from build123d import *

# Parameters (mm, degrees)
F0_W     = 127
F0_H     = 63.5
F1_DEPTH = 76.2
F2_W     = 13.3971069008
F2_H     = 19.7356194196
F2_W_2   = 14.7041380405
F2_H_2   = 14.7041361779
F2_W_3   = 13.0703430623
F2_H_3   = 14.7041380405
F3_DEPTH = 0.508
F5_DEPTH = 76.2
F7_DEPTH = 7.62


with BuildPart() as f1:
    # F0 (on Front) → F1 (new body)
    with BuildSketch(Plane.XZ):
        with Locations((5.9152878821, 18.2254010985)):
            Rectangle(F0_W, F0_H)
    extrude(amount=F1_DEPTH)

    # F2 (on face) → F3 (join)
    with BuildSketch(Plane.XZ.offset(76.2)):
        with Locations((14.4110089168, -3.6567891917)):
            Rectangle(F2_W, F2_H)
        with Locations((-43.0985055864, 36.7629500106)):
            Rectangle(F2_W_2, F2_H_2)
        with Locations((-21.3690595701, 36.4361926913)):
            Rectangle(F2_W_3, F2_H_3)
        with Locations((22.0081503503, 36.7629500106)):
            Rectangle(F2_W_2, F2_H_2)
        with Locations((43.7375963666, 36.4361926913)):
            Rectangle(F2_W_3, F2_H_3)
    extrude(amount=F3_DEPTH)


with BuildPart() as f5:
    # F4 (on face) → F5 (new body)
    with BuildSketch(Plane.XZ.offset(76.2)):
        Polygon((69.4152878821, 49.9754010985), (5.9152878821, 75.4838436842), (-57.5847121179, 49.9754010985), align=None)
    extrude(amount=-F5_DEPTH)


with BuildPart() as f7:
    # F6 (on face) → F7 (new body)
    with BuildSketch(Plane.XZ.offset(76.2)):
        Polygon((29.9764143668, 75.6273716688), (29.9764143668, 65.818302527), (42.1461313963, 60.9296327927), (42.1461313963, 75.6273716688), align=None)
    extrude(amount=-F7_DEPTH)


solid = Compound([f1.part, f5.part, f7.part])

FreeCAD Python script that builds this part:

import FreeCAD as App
import Part
import Sketcher

V = App.Vector
Q = App.Units.Quantity

doc = App.newDocument("Part")
body = doc.addObject("PartDesign::Body", "Body")

sketch1 = body.newObject("Sketcher::SketchObject", "Sketch")
sketch1.AttachmentSupport = (doc.getObject("XZ_Plane"), [""])
sketch1.MapMode = "FlatFace"
sketch1.addGeometry(Part.LineSegment(V(-57.584712, 49.975401, 0), V(-57.584712, -13.524599, 0)), False)
sketch1.addGeometry(Part.LineSegment(V(-57.584712, -13.524599, 0), V(69.415288, -13.524599, 0)), False)
sketch1.addGeometry(Part.LineSegment(V(69.415288, -13.524599, 0), V(69.415288, 49.975401, 0)), False)
sketch1.addGeometry(Part.LineSegment(V(69.415288, 49.975401, 0), V(-57.584712, 49.975401, 0)), False)
sketch1.addConstraint(Sketcher.Constraint("Coincident", 0, 2, 1, 1))
sketch1.addConstraint(Sketcher.Constraint("Coincident", 1, 2, 2, 1))
sketch1.addConstraint(Sketcher.Constraint("Coincident", 2, 2, 3, 1))
sketch1.addConstraint(Sketcher.Constraint("Coincident", 3, 2, 0, 1))
sketch1.addConstraint(Sketcher.Constraint("Vertical", 0))
sketch1.addConstraint(Sketcher.Constraint("Horizontal", 1))
sketch1.addConstraint(Sketcher.Constraint("Vertical", 2))
sketch1.addConstraint(Sketcher.Constraint("Horizontal", 3))
sketch1.addConstraint(Sketcher.Constraint("DistanceX", 1, 1, 1, 2, Q("5 in")))
sketch1.addConstraint(Sketcher.Constraint("DistanceY", 0, 2, 0, 1, Q("2.5 in")))
sketch1.addConstraint(Sketcher.Constraint("DistanceY", 0, 2, -1, 1, Q("13.524599 mm")))
sketch1.addConstraint(Sketcher.Constraint("DistanceX", 0, 2, -1, 1, Q("57.584712 mm")))
pad1 = body.newObject("PartDesign::Pad", "Pad")
pad1.Profile = sketch1
pad1.Length = Q("3 in")

sketch2 = body.newObject("Sketcher::SketchObject", "Sketch001")
sketch2.AttachmentSupport = (doc.getObject("XZ_Plane"), [""])
sketch2.MapMode = "FlatFace"
sketch2.AttachmentOffset = App.Placement(V(0, 0, 3 * 25.4), App.Rotation())
sketch2.addGeometry(Part.LineSegment(V(7.712455, 6.211021, 0), V(7.712455, -13.524599, 0)), False)
sketch2.addGeometry(Part.LineSegment(V(7.712455, -13.524599, 0), V(21.109562, -13.524599, 0)), False)
sketch2.addGeometry(Part.LineSegment(V(21.109562, -13.524599, 0), V(21.109562, 6.211021, 0)), False)
sketch2.addGeometry(Part.LineSegment(V(21.109562, 6.211021, 0), V(7.712455, 6.211021, 0)), False)
sketch2.addGeometry(Part.LineSegment(V(-50.450575, 44.115018, 0), V(-50.450575, 29.410882, 0)), False)
sketch2.addGeometry(Part.LineSegment(V(-50.450575, 29.410882, 0), V(-35.746437, 29.410882, 0)), False)
sketch2.addGeometry(Part.LineSegment(V(-35.746437, 29.410882, 0), V(-35.746437, 44.115018, 0)), False)
sketch2.addGeometry(Part.LineSegment(V(-35.746437, 44.115018, 0), V(-50.450575, 44.115018, 0)), False)
sketch2.addGeometry(Part.LineSegment(V(-27.904231, 43.788262, 0), V(-27.904231, 29.084124, 0)), False)
sketch2.addGeometry(Part.LineSegment(V(-27.904231, 29.084124, 0), V(-14.833888, 29.084124, 0)), False)
sketch2.addGeometry(Part.LineSegment(V(-14.833888, 29.084124, 0), V(-14.833888, 43.788262, 0)), False)
sketch2.addGeometry(Part.LineSegment(V(-14.833888, 43.788262, 0), V(-27.904231, 43.788262, 0)), False)
sketch2.addGeometry(Part.LineSegment(V(14.656081, 44.115018, 0), V(14.656081, 29.410882, 0)), False)
sketch2.addGeometry(Part.LineSegment(V(14.656081, 29.410882, 0), V(29.360219, 29.410882, 0)), False)
sketch2.addGeometry(Part.LineSegment(V(29.360219, 29.410882, 0), V(29.360219, 44.115018, 0)), False)
sketch2.addGeometry(Part.LineSegment(V(29.360219, 44.115018, 0), V(14.656081, 44.115018, 0)), False)
sketch2.addGeometry(Part.LineSegment(V(37.202425, 43.788262, 0), V(37.202425, 29.084124, 0)), False)
sketch2.addGeometry(Part.LineSegment(V(37.202425, 29.084124, 0), V(50.272768, 29.084124, 0)), False)
sketch2.addGeometry(Part.LineSegment(V(50.272768, 29.084124, 0), V(50.272768, 43.788262, 0)), False)
sketch2.addGeometry(Part.LineSegment(V(50.272768, 43.788262, 0), V(37.202425, 43.788262, 0)), False)
sketch2.addConstraint(Sketcher.Constraint("Coincident", 0, 2, 1, 1))
sketch2.addConstraint(Sketcher.Constraint("Coincident", 1, 2, 2, 1))
sketch2.addConstraint(Sketcher.Constraint("Coincident", 2, 2, 3, 1))
sketch2.addConstraint(Sketcher.Constraint("Coincident", 3, 2, 0, 1))
sketch2.addConstraint(Sketcher.Constraint("Coincident", 4, 2, 5, 1))
sketch2.addConstraint(Sketcher.Constraint("Coincident", 5, 2, 6, 1))
sketch2.addConstraint(Sketcher.Constraint("Coincident", 6, 2, 7, 1))
sketch2.addConstraint(Sketcher.Constraint("Coincident", 7, 2, 4, 1))
sketch2.addConstraint(Sketcher.Constraint("Coincident", 8, 2, 9, 1))
sketch2.addConstraint(Sketcher.Constraint("Coincident", 9, 2, 10, 1))
sketch2.addConstraint(Sketcher.Constraint("Coincident", 10, 2, 11, 1))
sketch2.addConstraint(Sketcher.Constraint("Coincident", 11, 2, 8, 1))
sketch2.addConstraint(Sketcher.Constraint("Coincident", 12, 2, 13, 1))
sketch2.addConstraint(Sketcher.Constraint("Coincident", 13, 2, 14, 1))
sketch2.addConstraint(Sketcher.Constraint("Coincident", 14, 2, 15, 1))
sketch2.addConstraint(Sketcher.Constraint("Coincident", 15, 2, 12, 1))
sketch2.addConstraint(Sketcher.Constraint("Coincident", 16, 2, 17, 1))
sketch2.addConstraint(Sketcher.Constraint("Coincident", 17, 2, 18, 1))
sketch2.addConstraint(Sketcher.Constraint("Coincident", 18, 2, 19, 1))
sketch2.addConstraint(Sketcher.Constraint("Coincident", 19, 2, 16, 1))
sketch2.addConstraint(Sketcher.Constraint("Vertical", 0))
sketch2.addConstraint(Sketcher.Constraint("Horizontal", 1))
sketch2.addConstraint(Sketcher.Constraint("Vertical", 2))
sketch2.addConstraint(Sketcher.Constraint("Horizontal", 3))
sketch2.addConstraint(Sketcher.Constraint("Vertical", 4))
sketch2.addConstraint(Sketcher.Constraint("Horizontal", 5))
sketch2.addConstraint(Sketcher.Constraint("Vertical", 6))
sketch2.addConstraint(Sketcher.Constraint("Horizontal", 7))
sketch2.addConstraint(Sketcher.Constraint("Vertical", 8))
sketch2.addConstraint(Sketcher.Constraint("Horizontal", 9))
sketch2.addConstraint(Sketcher.Constraint("Vertical", 10))
sketch2.addConstraint(Sketcher.Constraint("Horizontal", 11))
sketch2.addConstraint(Sketcher.Constraint("Vertical", 12))
sketch2.addConstraint(Sketcher.Constraint("Horizontal", 13))
sketch2.addConstraint(Sketcher.Constraint("Vertical", 14))
sketch2.addConstraint(Sketcher.Constraint("Horizontal", 15))
sketch2.addConstraint(Sketcher.Constraint("Vertical", 16))
sketch2.addConstraint(Sketcher.Constraint("Horizontal", 17))
sketch2.addConstraint(Sketcher.Constraint("Vertical", 18))
sketch2.addConstraint(Sketcher.Constraint("Horizontal", 19))
sketch2.addConstraint(Sketcher.Constraint("Horizontal", 5, 2, 12, 2))
sketch2.addConstraint(Sketcher.Constraint("Horizontal", 7, 2, 14, 2))
sketch2.addConstraint(Sketcher.Constraint("Horizontal", 9, 2, 16, 2))
sketch2.addConstraint(Sketcher.Constraint("Horizontal", 11, 2, 18, 2))
sketch2.addConstraint(Sketcher.Constraint("Equal", 7, 13))
sketch2.addConstraint(Sketcher.Constraint("Equal", 11, 17))
sketch2.addConstraint(Sketcher.Constraint("Equal", 15, 4))
sketch2.addConstraint(Sketcher.Constraint("Equal", 6, 8))
sketch2.addConstraint(Sketcher.Constraint("DistanceX", 5, 1, 5, 2, Q("14.704138 mm")))
sketch2.addConstraint(Sketcher.Constraint("DistanceY", 0, 2, 0, 1, Q("19.735619 mm")))
sketch2.addConstraint(Sketcher.Constraint("DistanceY", 0, 2, -1, 1, Q("13.524599 mm")))
sketch2.addConstraint(Sketcher.Constraint("DistanceX", 5, 2, 2, 2, Q("56.855999 mm")))
sketch2.addConstraint(Sketcher.Constraint("DistanceX", 1, 1, 1, 2, Q("13.397107 mm")))
sketch2.addConstraint(Sketcher.Constraint("DistanceX", 9, 1, 9, 2, Q("13.070343 mm")))
sketch2.addConstraint(Sketcher.Constraint("DistanceY", -1, 1, 4, 2, Q("29.410882 mm")))
sketch2.addConstraint(Sketcher.Constraint("DistanceX", 8, 2, -1, 1, Q("27.904231 mm")))
sketch2.addConstraint(Sketcher.Constraint("DistanceY", -1, 1, 10, 2, Q("43.788262 mm")))
sketch2.addConstraint(Sketcher.Constraint("DistanceX", -1, 1, 12, 2, Q("14.656081 mm")))
sketch2.addConstraint(Sketcher.Constraint("DistanceX", 5, 2, 9, 2, Q("20.912549 mm")))
sketch2.addConstraint(Sketcher.Constraint("DistanceX", 13, 2, 17, 2, Q("20.912549 mm")))
pad2 = body.newObject("PartDesign::Pad", "Pad001")
pad2.Profile = sketch2
pad2.Length = Q("0.02 in")
body2 = doc.addObject("PartDesign::Body", "Body001")

sketch3 = body2.newObject("Sketcher::SketchObject", "Sketch002")
sketch3.AttachmentSupport = (doc.getObject("XZ_Plane001"), [""])
sketch3.MapMode = "FlatFace"
sketch3.AttachmentOffset = App.Placement(V(0, 0, 3 * 25.4), App.Rotation())
sketch3.addGeometry(Part.LineSegment(V(69.415288, 49.975401, 0), V(5.915288, 75.483844, 0)), False)
sketch3.addGeometry(Part.LineSegment(V(5.915288, 75.483844, 0), V(-57.584712, 49.975401, 0)), False)
sketch3.addGeometry(Part.LineSegment(V(-57.584712, 49.975401, 0), V(69.415288, 49.975401, 0)), False)
sketch3.addConstraint(Sketcher.Constraint("Coincident", 0, 2, 1, 1))
sketch3.addConstraint(Sketcher.Constraint("Coincident", 1, 2, 2, 1))
sketch3.addConstraint(Sketcher.Constraint("Coincident", 2, 2, 0, 1))
sketch3.addConstraint(Sketcher.Constraint("Horizontal", 2))
sketch3.addConstraint(Sketcher.Constraint("Equal", 0, 1))
sketch3.addConstraint(Sketcher.Constraint("DistanceX", 2, 1, 2, 2, Q("5 in")))
sketch3.addConstraint(Sketcher.Constraint("DistanceY", -1, 1, 1, 2, Q("49.975401 mm")))
sketch3.addConstraint(Sketcher.Constraint("Distance", 0, Q("68.431942 mm")))
sketch3.addConstraint(Sketcher.Constraint("DistanceX", -1, 1, 0, 2, Q("5.915288 mm")))
pad3 = body2.newObject("PartDesign::Pad", "Pad002")
pad3.Profile = sketch3
pad3.Length = Q("3 in")
pad3.Reversed = True
body3 = doc.addObject("PartDesign::Body", "Body002")

sketch4 = body3.newObject("Sketcher::SketchObject", "Sketch003")
sketch4.AttachmentSupport = (doc.getObject("XZ_Plane002"), [""])
sketch4.MapMode = "FlatFace"
sketch4.AttachmentOffset = App.Placement(V(0, 0, 3 * 25.4), App.Rotation())
sketch4.addGeometry(Part.LineSegment(V(29.976414, 75.627372, 0), V(29.976414, 65.818303, 0)), False)
sketch4.addGeometry(Part.LineSegment(V(29.976414, 65.818303, 0), V(42.146131, 60.929633, 0)), False)
sketch4.addGeometry(Part.LineSegment(V(42.146131, 60.929633, 0), V(42.146131, 75.627372, 0)), False)
sketch4.addGeometry(Part.LineSegment(V(42.146131, 75.627372, 0), V(29.976414, 75.627372, 0)), False)
sketch4.addConstraint(Sketcher.Constraint("Coincident", 0, 2, 1, 1))
sketch4.addConstraint(Sketcher.Constraint("Coincident", 1, 2, 2, 1))
sketch4.addConstraint(Sketcher.Constraint("Coincident", 2, 2, 3, 1))
sketch4.addConstraint(Sketcher.Constraint("Coincident", 3, 2, 0, 1))
sketch4.addConstraint(Sketcher.Constraint("Vertical", 0))
sketch4.addConstraint(Sketcher.Constraint("Vertical", 2))
sketch4.addConstraint(Sketcher.Constraint("Horizontal", 3))
sketch4.addConstraint(Sketcher.Constraint("DistanceY", 0, 2, 0, 1, Q("9.809069 mm")))
sketch4.addConstraint(Sketcher.Constraint("DistanceY", 2, 1, 2, 2, Q("14.697739 mm")))
sketch4.addConstraint(Sketcher.Constraint("Distance", 1, Q("13.114919 mm")))
sketch4.addConstraint(Sketcher.Constraint("DistanceX", -1, 1, 1, 2, Q("42.146131 mm")))
sketch4.addConstraint(Sketcher.Constraint("DistanceY", -1, 1, 2, 2, Q("75.627372 mm")))
pad4 = body3.newObject("PartDesign::Pad", "Pad003")
pad4.Profile = sketch4
pad4.Length = Q("0.3 in")
pad4.Reversed = True

doc.recompute()
